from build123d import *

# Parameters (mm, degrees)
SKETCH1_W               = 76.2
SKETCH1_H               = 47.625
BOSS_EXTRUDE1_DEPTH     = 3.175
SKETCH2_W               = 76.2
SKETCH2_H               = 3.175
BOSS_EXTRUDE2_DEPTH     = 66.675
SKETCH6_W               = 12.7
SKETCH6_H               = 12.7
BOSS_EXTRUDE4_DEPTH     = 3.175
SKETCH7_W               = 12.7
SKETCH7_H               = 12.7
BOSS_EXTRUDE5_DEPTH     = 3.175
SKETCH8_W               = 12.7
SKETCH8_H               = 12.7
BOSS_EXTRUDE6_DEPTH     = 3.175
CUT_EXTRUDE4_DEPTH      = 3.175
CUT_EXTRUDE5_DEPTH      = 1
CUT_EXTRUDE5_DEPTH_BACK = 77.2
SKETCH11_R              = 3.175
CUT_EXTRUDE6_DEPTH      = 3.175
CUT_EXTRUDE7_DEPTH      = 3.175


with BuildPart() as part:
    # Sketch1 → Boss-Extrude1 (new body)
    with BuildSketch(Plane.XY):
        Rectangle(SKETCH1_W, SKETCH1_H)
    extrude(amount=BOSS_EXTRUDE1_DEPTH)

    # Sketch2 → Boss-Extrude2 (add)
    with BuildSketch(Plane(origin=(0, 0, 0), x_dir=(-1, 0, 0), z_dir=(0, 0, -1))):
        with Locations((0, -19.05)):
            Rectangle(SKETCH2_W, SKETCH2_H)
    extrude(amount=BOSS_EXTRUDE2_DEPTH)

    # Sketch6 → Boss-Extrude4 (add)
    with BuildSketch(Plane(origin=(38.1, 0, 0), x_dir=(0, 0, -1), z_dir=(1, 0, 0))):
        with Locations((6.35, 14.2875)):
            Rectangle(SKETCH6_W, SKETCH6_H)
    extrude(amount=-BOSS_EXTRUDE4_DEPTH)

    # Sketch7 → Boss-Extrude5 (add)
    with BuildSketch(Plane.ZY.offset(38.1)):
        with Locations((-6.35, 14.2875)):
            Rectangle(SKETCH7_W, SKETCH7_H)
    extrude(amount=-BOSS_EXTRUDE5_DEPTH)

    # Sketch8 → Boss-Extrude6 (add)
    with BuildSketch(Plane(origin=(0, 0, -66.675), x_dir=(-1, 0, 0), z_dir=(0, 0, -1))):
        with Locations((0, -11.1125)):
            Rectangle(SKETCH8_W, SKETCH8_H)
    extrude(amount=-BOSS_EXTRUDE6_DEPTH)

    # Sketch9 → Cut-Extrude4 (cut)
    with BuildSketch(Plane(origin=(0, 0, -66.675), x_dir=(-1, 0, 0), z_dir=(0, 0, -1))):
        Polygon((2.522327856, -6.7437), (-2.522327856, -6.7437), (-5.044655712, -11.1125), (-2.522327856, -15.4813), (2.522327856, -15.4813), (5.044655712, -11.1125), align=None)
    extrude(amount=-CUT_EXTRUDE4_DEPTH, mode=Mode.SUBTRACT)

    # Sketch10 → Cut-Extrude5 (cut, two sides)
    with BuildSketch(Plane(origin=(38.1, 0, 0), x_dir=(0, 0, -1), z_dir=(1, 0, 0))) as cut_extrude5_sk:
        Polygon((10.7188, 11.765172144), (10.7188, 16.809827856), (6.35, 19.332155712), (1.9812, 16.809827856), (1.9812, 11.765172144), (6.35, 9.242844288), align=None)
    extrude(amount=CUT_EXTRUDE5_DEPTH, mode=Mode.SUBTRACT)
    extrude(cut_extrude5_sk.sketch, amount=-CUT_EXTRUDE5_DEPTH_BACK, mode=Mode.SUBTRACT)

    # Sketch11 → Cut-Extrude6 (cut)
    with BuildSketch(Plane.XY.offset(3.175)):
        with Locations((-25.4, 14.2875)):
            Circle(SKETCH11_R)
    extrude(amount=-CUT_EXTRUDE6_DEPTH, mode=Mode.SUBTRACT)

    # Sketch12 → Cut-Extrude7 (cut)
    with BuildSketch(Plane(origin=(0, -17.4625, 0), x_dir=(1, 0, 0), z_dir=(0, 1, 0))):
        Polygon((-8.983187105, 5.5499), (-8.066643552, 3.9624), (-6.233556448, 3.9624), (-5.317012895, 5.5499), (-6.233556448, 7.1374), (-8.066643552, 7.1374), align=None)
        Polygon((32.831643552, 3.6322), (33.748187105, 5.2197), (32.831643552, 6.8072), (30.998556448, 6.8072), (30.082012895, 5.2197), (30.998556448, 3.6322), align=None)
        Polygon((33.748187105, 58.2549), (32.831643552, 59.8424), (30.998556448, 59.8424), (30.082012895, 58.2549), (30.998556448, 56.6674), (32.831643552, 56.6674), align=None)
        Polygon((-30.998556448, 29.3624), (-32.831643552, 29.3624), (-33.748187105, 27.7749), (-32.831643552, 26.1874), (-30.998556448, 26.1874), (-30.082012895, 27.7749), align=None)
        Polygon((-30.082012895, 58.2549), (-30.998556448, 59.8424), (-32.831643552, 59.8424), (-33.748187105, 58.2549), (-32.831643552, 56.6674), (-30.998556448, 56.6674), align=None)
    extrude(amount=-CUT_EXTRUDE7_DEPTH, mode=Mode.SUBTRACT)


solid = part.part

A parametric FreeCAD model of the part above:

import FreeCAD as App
import Part
import Sketcher

V = App.Vector
Q = App.Units.Quantity


def add_polygon(sketch, points):
    """Adds a closed chain of lines whose ends are joined by coincident constraints."""
    first, n = sketch.GeometryCount, len(points)
    for a, b in zip(points, points[1:] + points[:1]):
        sketch.addGeometry(Part.LineSegment(App.Vector(*a, 0), App.Vector(*b, 0)), False)
    for i in range(n):
        sketch.addConstraint(Sketcher.Constraint("Coincident", first + i, 2, first + (i + 1) % n, 1))

doc = App.newDocument("Part")
body = doc.addObject("PartDesign::Body", "Body")

# Sketch on XY plane
sketch1 = doc.addObject("Sketcher::SketchObject", "Sketch")
body.addObject(sketch1)
sketch1.AttachmentSupport = (doc.XY_Plane, [""])
sketch1.MapMode = "FlatFace"
add_polygon(sketch1, [(-38.1, 23.8125), (-38.1, -23.8125), (38.1, -23.8125), (38.1, 23.8125)])  # lines 0-3
sketch1.addConstraint([
    Sketcher.Constraint("Vertical", 0),
    Sketcher.Constraint("Horizontal", 1),
    Sketcher.Constraint("Vertical", 2),
    Sketcher.Constraint("Horizontal", 3),
    Sketcher.Constraint("Symmetric", 0, 2, 2, 2, -1, 1),
    Sketcher.Constraint("DistanceX", 1, 1, 1, 2, Q("3 in")),
    Sketcher.Constraint("DistanceY", 0, 2, 0, 1, Q("1.875 in")),
])
pad1 = doc.addObject("PartDesign::Pad", "Pad")
body.addObject(pad1)
pad1.Profile = sketch1
pad1.Length = Q("0.125 in")

# Sketch on XY plane
sketch2 = doc.addObject("Sketcher::SketchObject", "Sketch001")
body.addObject(sketch2)
sketch2.AttachmentSupport = (doc.XY_Plane, [""])
sketch2.MapMode = "FlatFace"
add_polygon(sketch2, [(38.1, -17.4625), (38.1, -20.6375), (-38.1, -20.6375), (-38.1, -17.4625)])  # lines 0-3
sketch2.addConstraint([
    Sketcher.Constraint("Vertical", 0),
    Sketcher.Constraint("Horizontal", 1),
    Sketcher.Constraint("Vertical", 2),
    Sketcher.Constraint("Horizontal", 3),
    Sketcher.Constraint("DistanceX", 1, 2, 1, 1, Q("3 in")),
    Sketcher.Constraint("DistanceX", -1, 1, 0, 2, Q("1.5 in")),
    Sketcher.Constraint("DistanceY", 0, 2, 0, 1, Q("0.125 in")),
    Sketcher.Constraint("DistanceY", 0, 2, -1, 1, Q("0.8125 in")),
])
pad2 = doc.addObject("PartDesign::Pad", "Pad001")
body.addObject(pad2)
pad2.Profile = sketch2
pad2.Length = Q("2.625 in")
pad2.Reversed = True

# Sketch on YZ plane
sketch3 = doc.addObject("Sketcher::SketchObject", "Sketch002")
body.addObject(sketch3)
sketch3.AttachmentSupport = (doc.YZ_Plane, [""])
sketch3.MapMode = "FlatFace"
sketch3.AttachmentOffset = App.Placement(V(0, 0, 1.5 * 25.4), App.Rotation())
add_polygon(sketch3, [(20.6375, 0), (7.9375, 0), (7.9375, -12.7), (20.6375, -12.7)])  # lines 0-3
sketch3.addConstraint([
    Sketcher.Constraint("Horizontal", 0),
    Sketcher.Constraint("Vertical", 1),
    Sketcher.Constraint("Horizontal", 2),
    Sketcher.Constraint("Vertical", 3),
    Sketcher.Constraint("PointOnObject", 0, 2, -1),
    Sketcher.Constraint("Equal", 2, 1),
    Sketcher.Constraint("DistanceX", 0, 2, 0, 1, Q("0.5 in")),
    Sketcher.Constraint("DistanceX", -1, 1, 0, 2, Q("0.3125 in")),
])
pad3 = doc.addObject("PartDesign::Pad", "Pad002")
body.addObject(pad3)
pad3.Profile = sketch3
pad3.Length = Q("0.125 in")
pad3.Reversed = True

# Sketch on YZ plane
sketch4 = doc.addObject("Sketcher::SketchObject", "Sketch003")
body.addObject(sketch4)
sketch4.AttachmentSupport = (doc.YZ_Plane, [""])
sketch4.MapMode = "FlatFace"
sketch4.AttachmentOffset = App.Placement(V(0, 0, -1.5 * 25.4), App.Rotation())
add_polygon(sketch4, [(20.6375, -12.7), (7.9375, -12.7), (7.9375, 0), (20.6375, 0)])  # lines 0-3
sketch4.addConstraint([
    Sketcher.Constraint("Horizontal", 0),
    Sketcher.Constraint("Vertical", 1),
    Sketcher.Constraint("Horizontal", 2),
    Sketcher.Constraint("Vertical", 3),
    Sketcher.Constraint("PointOnObject", 1, 2, -1),
    Sketcher.Constraint("Equal", 2, 1),
    Sketcher.Constraint("DistanceX", 0, 2, 0, 1, Q("0.5 in")),
    Sketcher.Constraint("DistanceX", -1, 1, 0, 2, Q("0.3125 in")),
])
pad4 = doc.addObject("PartDesign::Pad", "Pad003")
body.addObject(pad4)
pad4.Profile = sketch4
pad4.Length = Q("0.125 in")

# Sketch on XY plane
sketch5 = doc.addObject("Sketcher::SketchObject", "Sketch004")
body.addObject(sketch5)
sketch5.AttachmentSupport = (doc.XY_Plane, [""])
sketch5.MapMode = "FlatFace"
sketch5.AttachmentOffset = App.Placement(V(0, 0, -2.625 * 25.4), App.Rotation())
add_polygon(sketch5, [(6.35, -4.7625), (6.35, -17.4625), (-6.35, -17.4625), (-6.35, -4.7625)])  # lines 0-3
sketch5.addConstraint([
    Sketcher.Constraint("Vertical", 0),
    Sketcher.Constraint("Horizontal", 1),
    Sketcher.Constraint("Vertical", 2),
    Sketcher.Constraint("Horizontal", 3),
    Sketcher.Constraint("Equal", 3, 0),
    Sketcher.Constraint("DistanceX", 1, 2, 1, 1, Q("0.5 in")),
    Sketcher.Constraint("DistanceX", -1, 1, 0, 2, Q("0.25 in")),
    Sketcher.Constraint("DistanceY", 0, 2, -1, 1, Q("0.6875 in")),
])
pad5 = doc.addObject("PartDesign::Pad", "Pad004")
body.addObject(pad5)
pad5.Profile = sketch5
pad5.Length = Q("0.125 in")

# Sketch on XY plane
sketch6 = doc.addObject("Sketcher::SketchObject", "Sketch005")
body.addObject(sketch6)
sketch6.AttachmentSupport = (doc.XY_Plane, [""])
sketch6.MapMode = "FlatFace"
sketch6.AttachmentOffset = App.Placement(V(0, 0, -2.625 * 25.4), App.Rotation())
add_polygon(sketch6, [(-2.522328, -6.7437), (2.522328, -6.7437), (5.044656, -11.1125), (2.522328, -15.4813), (-2.522328, -15.4813), (-5.044656, -11.1125)])  # lines 0-5
sketch6.addConstraint([
    Sketcher.Constraint("Horizontal", 0),
    Sketcher.Constraint("Horizontal", 3),
    Sketcher.Constraint("Symmetric", 1, 2, 4, 2, -2),
    Sketcher.Constraint("Parallel", 1, 4),
    Sketcher.Constraint("Parallel", 2, 5),
    Sketcher.Constraint("Vertical", 0, 2, 2, 2),
    Sketcher.Constraint("Vertical", 3, 2, 5, 2),
    Sketcher.Constraint("Angle", 1, Q("-60 deg")),
    Sketcher.Constraint("DistanceY", 1, 2, -1, 1, Q("0.4375 in")),
    Sketcher.Constraint("DistanceY", 1, 2, 0, 2, Q("0.172 in")),
    Sketcher.Constraint("DistanceX", 0, 1, 0, 2, 5.044656),
])
pocket1 = doc.addObject("PartDesign::Pocket", "Pocket")
body.addObject(pocket1)
pocket1.Profile = sketch6
pocket1.Length = Q("0.125 in")
pocket1.Reversed = True

# Sketch on YZ plane
sketch7 = doc.addObject("Sketcher::SketchObject", "Sketch006")
body.addObject(sketch7)
sketch7.AttachmentSupport = (doc.YZ_Plane, [""])
sketch7.MapMode = "FlatFace"
sketch7.AttachmentOffset = App.Placement(V(0, 0, 1.5 * 25.4), App.Rotation())
add_polygon(sketch7, [(11.765172, -10.7188), (16.809828, -10.7188), (19.332156, -6.35), (16.809828, -1.9812), (11.765172, -1.9812), (9.242844, -6.35)])  # lines 0-5
sketch7.addConstraint([
    Sketcher.Constraint("Horizontal", 0),
    Sketcher.Constraint("Horizontal", 3),
    Sketcher.Constraint("Parallel", 1, 4),
    Sketcher.Constraint("Parallel", 2, 5),
    Sketcher.Constraint("Horizontal", 1, 2, 4, 2),
    Sketcher.Constraint("Vertical", 0, 2, 2, 2),
    Sketcher.Constraint("Vertical", 3, 2, 5, 2),
    Sketcher.Constraint("Angle", 1, Q("60 deg")),
    Sketcher.Constraint("DistanceY", 1, 2, -1, 1, Q("0.25 in")),
    Sketcher.Constraint("DistanceY", 0, 2, -1, 1, Q("0.422 in")),
    Sketcher.Constraint("DistanceX", 0, 1, 0, 2, 5.044656),
    Sketcher.Constraint("DistanceX", -1, 1, 0, 2, 16.809828),
])
pocket2 = doc.addObject("PartDesign::Pocket", "Pocket001")
body.addObject(pocket2)
pocket2.Profile = sketch7
pocket2.Type = "ThroughAll"
pocket2.Midplane = True

# Sketch on XY plane
sketch8 = doc.addObject("Sketcher::SketchObject", "Sketch007")
body.addObject(sketch8)
sketch8.AttachmentSupport = (doc.XY_Plane, [""])
sketch8.MapMode = "FlatFace"
sketch8.AttachmentOffset = App.Placement(V(0, 0, 0.125 * 25.4), App.Rotation())
sketch8.addGeometry(Part.Circle(V(-25.4, 14.2875, 0), V(0, 0, 1), 3.175), False)
sketch8.addConstraint([
    Sketcher.Constraint("Diameter", 0, Q("0.25 in")),
    Sketcher.Constraint("DistanceX", 0, 3, -1, 1, Q("1 in")),
    Sketcher.Constraint("DistanceY", -1, 1, 0, 3, Q("0.5625 in")),
])
pocket3 = doc.addObject("PartDesign::Pocket", "Pocket002")
body.addObject(pocket3)
pocket3.Profile = sketch8
pocket3.Length = Q("0.125 in")

# Sketch on XZ plane
sketch9 = doc.addObject("Sketcher::SketchObject", "Sketch008")
body.addObject(sketch9)
sketch9.AttachmentSupport = (doc.XZ_Plane, [""])
sketch9.MapMode = "FlatFace"
sketch9.AttachmentOffset = App.Placement(V(0, 0, 0.6875 * 25.4), App.Rotation())
add_polygon(sketch9, [(-8.983187, -5.5499), (-8.066644, -3.9624), (-6.233556, -3.9624), (-5.317013, -5.5499), (-6.233556, -7.1374), (-8.066644, -7.1374)])  # lines 0-5
add_polygon(sketch9, [(32.831644, -3.6322), (33.748187, -5.2197), (32.831644, -6.8072), (30.998556, -6.8072), (30.082013, -5.2197), (30.998556, -3.6322)])  # lines 6-11
add_polygon(sketch9, [(33.748187, -58.2549), (32.831644, -59.8424), (30.998556, -59.8424), (30.082013, -58.2549), (30.998556, -56.6674), (32.831644, -56.6674)])  # lines 12-17
add_polygon(sketch9, [(-30.998556, -29.3624), (-32.831644, -29.3624), (-33.748187, -27.7749), (-32.831644, -26.1874), (-30.998556, -26.1874), (-30.082013, -27.7749)])  # lines 18-23
add_polygon(sketch9, [(-30.082013, -58.2549), (-30.998556, -59.8424), (-32.831644, -59.8424), (-33.748187, -58.2549), (-32.831644, -56.6674), (-30.998556, -56.6674)])  # lines 24-29
sketch9.addConstraint([
    Sketcher.Constraint("Horizontal", 1),
    Sketcher.Constraint("Horizontal", 4),
    Sketcher.Constraint("Horizontal", 8),
    Sketcher.Constraint("Horizontal", 11),
    Sketcher.Constraint("Horizontal", 13),
    Sketcher.Constraint("Horizontal", 16),
    Sketcher.Constraint("Horizontal", 18),
    Sketcher.Constraint("Horizontal", 21),
    Sketcher.Constraint("Horizontal", 25),
    Sketcher.Constraint("Horizontal", 28),
    Sketcher.Constraint("Symmetric", 13, 2, 24, 2, -2),
    Sketcher.Constraint("Symmetric", 17, 2, 26, 2, -2),
    Sketcher.Constraint("Symmetric", 16, 2, 27, 2, -2),
    Sketcher.Constraint("Symmetric", 14, 2, 29, 2, -2),
    Sketcher.Constraint("Parallel", 0, 3),
    Sketcher.Constraint("Parallel", 2, 5),
    Sketcher.Constraint("Parallel", 5, 6),
    Sketcher.Constraint("Parallel", 3, 7),
    Sketcher.Constraint("Parallel", 6, 9),
    Sketcher.Constraint("Parallel", 7, 10),
    Sketcher.Constraint("Parallel", 10, 12),
    Sketcher.Constraint("Parallel", 9, 14),
    Sketcher.Constraint("Parallel", 12, 15),
    Sketcher.Constraint("Parallel", 14, 17),
    Sketcher.Constraint("Parallel", 17, 19),
    Sketcher.Constraint("Parallel", 15, 20),
    Sketcher.Constraint("Parallel", 19, 22),
    Sketcher.Constraint("Parallel", 20, 23),
    Sketcher.Constraint("Parallel", 23, 24),
    Sketcher.Constraint("Parallel", 22, 26),
    Sketcher.Constraint("Parallel", 26, 29),
    Sketcher.Constraint("Horizontal", 2, 2, 5, 2),
    Sketcher.Constraint("Horizontal", 6, 2, 9, 2),
    Sketcher.Constraint("Horizontal", 14, 2, 17, 2),
    Sketcher.Constraint("Horizontal", 19, 2, 22, 2),
    Sketcher.Constraint("Vertical", 1, 2, 3, 2),
    Sketcher.Constraint("Vertical", 8, 2, 10, 2),
    Sketcher.Constraint("Vertical", 11, 2, 12, 2),
    Sketcher.Constraint("Vertical", 10, 2, 13, 2),
    Sketcher.Constraint("Vertical", 9, 2, 14, 2),
    Sketcher.Constraint("Vertical", 13, 2, 15, 2),
    Sketcher.Constraint("Vertical", 18, 2, 20, 2),
    Sketcher.Constraint("Vertical", 23, 2, 24, 2),
    Sketcher.Constraint("Vertical", 20, 2, 25, 2),
    Sketcher.Constraint("Vertical", 19, 2, 26, 2),
    Sketcher.Constraint("Equal", 4, 8),
    Sketcher.Constraint("Equal", 5, 6),
    Sketcher.Constraint("Angle", 0, Q("60 deg")),
    Sketcher.Constraint("DistanceY", 18, 2, 0, 2, Q("1 in")),
    Sketcher.Constraint("DistanceY", 24, 2, 23, 2, Q("1.2 in")),
    Sketcher.Constraint("DistanceY", 20, 2, 4, 2, Q("0.75 in")),
    Sketcher.Constraint("DistanceY", 0, 2, -1, 1, Q("0.156 in")),
    Sketcher.Constraint("DistanceY", 7, 2, -1, 1, Q("0.268 in")),
    Sketcher.Constraint("DistanceX", 2, 2, 6, 2, Q("1.538 in")),
    Sketcher.Constraint("DistanceX", 18, 2, 4, 2, Q("0.975 in")),
    Sketcher.Constraint("DistanceX", 1, 1, 1, 2, 1.833087),
])
pocket4 = doc.addObject("PartDesign::Pocket", "Pocket003")
body.addObject(pocket4)
pocket4.Profile = sketch9
pocket4.Length = Q("0.125 in")
pocket4.Reversed = True

doc.recompute()
